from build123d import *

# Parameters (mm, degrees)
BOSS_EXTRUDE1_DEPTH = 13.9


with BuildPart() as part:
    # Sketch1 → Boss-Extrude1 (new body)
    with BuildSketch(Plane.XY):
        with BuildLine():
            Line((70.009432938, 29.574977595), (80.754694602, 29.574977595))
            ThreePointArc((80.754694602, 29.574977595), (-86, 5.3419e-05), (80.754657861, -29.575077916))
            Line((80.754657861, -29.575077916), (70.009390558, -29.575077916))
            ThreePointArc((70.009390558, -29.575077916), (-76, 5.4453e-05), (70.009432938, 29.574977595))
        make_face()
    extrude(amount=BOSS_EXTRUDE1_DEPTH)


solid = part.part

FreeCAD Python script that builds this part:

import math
import FreeCAD as App
import Part
import Sketcher

V = App.Vector
Q = App.Units.Quantity

doc = App.newDocument("Part")
body = doc.addObject("PartDesign::Body", "Body")

sketch1 = body.newObject("Sketcher::SketchObject", "Sketch")
sketch1.AttachmentSupport = (doc.getObject("XY_Plane"), [""])
sketch1.MapMode = "FlatFace"
sketch1.addGeometry([
    Part.LineSegment(V(70.009433, 29.574978, 0), V(80.754695, 29.574978, 0)),
    Part.ArcOfCircle(Part.Circle(V(0, 0, 0), V(0, 0, 1), 86), math.radians(20.114362), math.radians(339.885566)),
    Part.LineSegment(V(80.754658, -29.575078, 0), V(70.009391, -29.575078, 0)),
    Part.ArcOfCircle(Part.Circle(V(0, 0, 0), V(0, 0, 1), 76), math.radians(22.901275), math.radians(337.098643)),
], False)
sketch1.addConstraint([
    Sketcher.Constraint("Coincident", 0, 2, 1, 1),
    Sketcher.Constraint("Coincident", 1, 2, 2, 1),
    Sketcher.Constraint("Coincident", 2, 2, 3, 2),
    Sketcher.Constraint("Coincident", 3, 1, 0, 1),
    Sketcher.Constraint("Horizontal", 0),
    Sketcher.Constraint("Horizontal", 2),
    Sketcher.Constraint("Coincident", 1, 3, -1, 1),
    Sketcher.Constraint("Coincident", 3, 3, -1, 1),
    Sketcher.Constraint("Radius", 1, Q("86 mm")),
    Sketcher.Constraint("Radius", 3, Q("76 mm")),
    Sketcher.Constraint("DistanceX", 0, 1, 0, 2, Q("10.745262 mm")),
    Sketcher.Constraint("DistanceX", 2, 2, 2, 1, Q("10.745267 mm")),
])
pad1 = body.newObject("PartDesign::Pad", "Pad")
pad1.Profile = sketch1
pad1.Length = 13.9

doc.recompute()
